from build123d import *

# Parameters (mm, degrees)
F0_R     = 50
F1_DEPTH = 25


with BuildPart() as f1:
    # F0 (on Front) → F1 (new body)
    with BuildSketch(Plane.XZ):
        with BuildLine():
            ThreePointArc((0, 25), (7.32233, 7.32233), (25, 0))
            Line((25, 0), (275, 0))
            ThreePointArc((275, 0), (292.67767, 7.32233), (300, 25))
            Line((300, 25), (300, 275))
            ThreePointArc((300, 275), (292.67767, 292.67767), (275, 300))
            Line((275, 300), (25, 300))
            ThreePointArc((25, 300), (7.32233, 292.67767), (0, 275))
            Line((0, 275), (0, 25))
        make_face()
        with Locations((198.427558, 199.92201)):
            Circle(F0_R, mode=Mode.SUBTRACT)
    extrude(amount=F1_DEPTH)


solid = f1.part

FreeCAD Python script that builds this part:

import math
import FreeCAD as App
import Part
import Sketcher
Q = App.Units.Quantity

doc = App.newDocument("Part")
body = doc.addObject("PartDesign::Body", "Body")

# Sketch on XZ plane
sketch1 = body.newObject("Sketcher::SketchObject", "Sketch")
sketch1.AttachmentSupport = (doc.getObject("XZ_Plane"), [""])
sketch1.MapMode = "FlatFace"
sketch1.addGeometry([
    Part.ArcOfCircle(Part.Circle(App.Vector(25, 25, 0), App.Vector(0, 0, 1), 25), math.radians(180), math.radians(270)),  # 0
    Part.LineSegment(App.Vector(25, 0, 0), App.Vector(275, 0, 0)),  # 1
    Part.ArcOfCircle(Part.Circle(App.Vector(275, 25, 0), App.Vector(0, 0, 1), 25), math.radians(-90), math.radians(0)),  # 2
    Part.LineSegment(App.Vector(300, 25, 0), App.Vector(300, 275, 0)),  # 3
    Part.ArcOfCircle(Part.Circle(App.Vector(275, 275, 0), App.Vector(0, 0, 1), 25), math.radians(0), math.radians(90)),  # 4
    Part.LineSegment(App.Vector(275, 300, 0), App.Vector(25, 300, 0)),  # 5
    Part.ArcOfCircle(Part.Circle(App.Vector(25, 275, 0), App.Vector(0, 0, 1), 25), math.radians(90), math.radians(180)),  # 6
    Part.LineSegment(App.Vector(0, 275, 0), App.Vector(0, 25, 0)),  # 7
    Part.Circle(App.Vector(198, 200, 0), App.Vector(0, 0, 1), 50),  # 8
], False)
sketch1.addConstraint([
    Sketcher.Constraint("Tangent", 0, 2, 1, 1),
    Sketcher.Constraint("Tangent", 1, 2, 2, 1),
    Sketcher.Constraint("Tangent", 2, 2, 3, 1),
    Sketcher.Constraint("Tangent", 3, 2, 4, 1),
    Sketcher.Constraint("Tangent", 4, 2, 5, 1),
    Sketcher.Constraint("Tangent", 5, 2, 6, 1),
    Sketcher.Constraint("Tangent", 6, 2, 7, 1),
    Sketcher.Constraint("Tangent", 7, 2, 0, 1),
    Sketcher.Constraint("Horizontal", 1),
    Sketcher.Constraint("Vertical", 3),
    Sketcher.Constraint("Horizontal", 5),
    Sketcher.Constraint("Vertical", 7),
    Sketcher.Constraint("Equal", 0, 2),
    Sketcher.Constraint("Equal", 2, 4),
    Sketcher.Constraint("Equal", 4, 6),
    Sketcher.Constraint("PointOnObject", 0, 2, -1),
    Sketcher.Constraint("PointOnObject", 6, 2, -2),
    Sketcher.Constraint("Equal", 5, 3),
    Sketcher.Constraint("Diameter", 8, Q("100 mm")),
    Sketcher.Constraint("Radius", 0, Q("24.999998 mm")),
    Sketcher.Constraint("DistanceX", 1, 1, 1, 2, Q("250 mm")),
    Sketcher.Constraint("DistanceX", -1, 1, 8, 3, Q("198.427558 mm")),
    Sketcher.Constraint("DistanceY", -1, 1, 8, 3, Q("199.92201 mm")),
])
pad1 = body.newObject("PartDesign::Pad", "Pad")
pad1.Profile = sketch1
pad1.Length = 25

doc.recompute()
